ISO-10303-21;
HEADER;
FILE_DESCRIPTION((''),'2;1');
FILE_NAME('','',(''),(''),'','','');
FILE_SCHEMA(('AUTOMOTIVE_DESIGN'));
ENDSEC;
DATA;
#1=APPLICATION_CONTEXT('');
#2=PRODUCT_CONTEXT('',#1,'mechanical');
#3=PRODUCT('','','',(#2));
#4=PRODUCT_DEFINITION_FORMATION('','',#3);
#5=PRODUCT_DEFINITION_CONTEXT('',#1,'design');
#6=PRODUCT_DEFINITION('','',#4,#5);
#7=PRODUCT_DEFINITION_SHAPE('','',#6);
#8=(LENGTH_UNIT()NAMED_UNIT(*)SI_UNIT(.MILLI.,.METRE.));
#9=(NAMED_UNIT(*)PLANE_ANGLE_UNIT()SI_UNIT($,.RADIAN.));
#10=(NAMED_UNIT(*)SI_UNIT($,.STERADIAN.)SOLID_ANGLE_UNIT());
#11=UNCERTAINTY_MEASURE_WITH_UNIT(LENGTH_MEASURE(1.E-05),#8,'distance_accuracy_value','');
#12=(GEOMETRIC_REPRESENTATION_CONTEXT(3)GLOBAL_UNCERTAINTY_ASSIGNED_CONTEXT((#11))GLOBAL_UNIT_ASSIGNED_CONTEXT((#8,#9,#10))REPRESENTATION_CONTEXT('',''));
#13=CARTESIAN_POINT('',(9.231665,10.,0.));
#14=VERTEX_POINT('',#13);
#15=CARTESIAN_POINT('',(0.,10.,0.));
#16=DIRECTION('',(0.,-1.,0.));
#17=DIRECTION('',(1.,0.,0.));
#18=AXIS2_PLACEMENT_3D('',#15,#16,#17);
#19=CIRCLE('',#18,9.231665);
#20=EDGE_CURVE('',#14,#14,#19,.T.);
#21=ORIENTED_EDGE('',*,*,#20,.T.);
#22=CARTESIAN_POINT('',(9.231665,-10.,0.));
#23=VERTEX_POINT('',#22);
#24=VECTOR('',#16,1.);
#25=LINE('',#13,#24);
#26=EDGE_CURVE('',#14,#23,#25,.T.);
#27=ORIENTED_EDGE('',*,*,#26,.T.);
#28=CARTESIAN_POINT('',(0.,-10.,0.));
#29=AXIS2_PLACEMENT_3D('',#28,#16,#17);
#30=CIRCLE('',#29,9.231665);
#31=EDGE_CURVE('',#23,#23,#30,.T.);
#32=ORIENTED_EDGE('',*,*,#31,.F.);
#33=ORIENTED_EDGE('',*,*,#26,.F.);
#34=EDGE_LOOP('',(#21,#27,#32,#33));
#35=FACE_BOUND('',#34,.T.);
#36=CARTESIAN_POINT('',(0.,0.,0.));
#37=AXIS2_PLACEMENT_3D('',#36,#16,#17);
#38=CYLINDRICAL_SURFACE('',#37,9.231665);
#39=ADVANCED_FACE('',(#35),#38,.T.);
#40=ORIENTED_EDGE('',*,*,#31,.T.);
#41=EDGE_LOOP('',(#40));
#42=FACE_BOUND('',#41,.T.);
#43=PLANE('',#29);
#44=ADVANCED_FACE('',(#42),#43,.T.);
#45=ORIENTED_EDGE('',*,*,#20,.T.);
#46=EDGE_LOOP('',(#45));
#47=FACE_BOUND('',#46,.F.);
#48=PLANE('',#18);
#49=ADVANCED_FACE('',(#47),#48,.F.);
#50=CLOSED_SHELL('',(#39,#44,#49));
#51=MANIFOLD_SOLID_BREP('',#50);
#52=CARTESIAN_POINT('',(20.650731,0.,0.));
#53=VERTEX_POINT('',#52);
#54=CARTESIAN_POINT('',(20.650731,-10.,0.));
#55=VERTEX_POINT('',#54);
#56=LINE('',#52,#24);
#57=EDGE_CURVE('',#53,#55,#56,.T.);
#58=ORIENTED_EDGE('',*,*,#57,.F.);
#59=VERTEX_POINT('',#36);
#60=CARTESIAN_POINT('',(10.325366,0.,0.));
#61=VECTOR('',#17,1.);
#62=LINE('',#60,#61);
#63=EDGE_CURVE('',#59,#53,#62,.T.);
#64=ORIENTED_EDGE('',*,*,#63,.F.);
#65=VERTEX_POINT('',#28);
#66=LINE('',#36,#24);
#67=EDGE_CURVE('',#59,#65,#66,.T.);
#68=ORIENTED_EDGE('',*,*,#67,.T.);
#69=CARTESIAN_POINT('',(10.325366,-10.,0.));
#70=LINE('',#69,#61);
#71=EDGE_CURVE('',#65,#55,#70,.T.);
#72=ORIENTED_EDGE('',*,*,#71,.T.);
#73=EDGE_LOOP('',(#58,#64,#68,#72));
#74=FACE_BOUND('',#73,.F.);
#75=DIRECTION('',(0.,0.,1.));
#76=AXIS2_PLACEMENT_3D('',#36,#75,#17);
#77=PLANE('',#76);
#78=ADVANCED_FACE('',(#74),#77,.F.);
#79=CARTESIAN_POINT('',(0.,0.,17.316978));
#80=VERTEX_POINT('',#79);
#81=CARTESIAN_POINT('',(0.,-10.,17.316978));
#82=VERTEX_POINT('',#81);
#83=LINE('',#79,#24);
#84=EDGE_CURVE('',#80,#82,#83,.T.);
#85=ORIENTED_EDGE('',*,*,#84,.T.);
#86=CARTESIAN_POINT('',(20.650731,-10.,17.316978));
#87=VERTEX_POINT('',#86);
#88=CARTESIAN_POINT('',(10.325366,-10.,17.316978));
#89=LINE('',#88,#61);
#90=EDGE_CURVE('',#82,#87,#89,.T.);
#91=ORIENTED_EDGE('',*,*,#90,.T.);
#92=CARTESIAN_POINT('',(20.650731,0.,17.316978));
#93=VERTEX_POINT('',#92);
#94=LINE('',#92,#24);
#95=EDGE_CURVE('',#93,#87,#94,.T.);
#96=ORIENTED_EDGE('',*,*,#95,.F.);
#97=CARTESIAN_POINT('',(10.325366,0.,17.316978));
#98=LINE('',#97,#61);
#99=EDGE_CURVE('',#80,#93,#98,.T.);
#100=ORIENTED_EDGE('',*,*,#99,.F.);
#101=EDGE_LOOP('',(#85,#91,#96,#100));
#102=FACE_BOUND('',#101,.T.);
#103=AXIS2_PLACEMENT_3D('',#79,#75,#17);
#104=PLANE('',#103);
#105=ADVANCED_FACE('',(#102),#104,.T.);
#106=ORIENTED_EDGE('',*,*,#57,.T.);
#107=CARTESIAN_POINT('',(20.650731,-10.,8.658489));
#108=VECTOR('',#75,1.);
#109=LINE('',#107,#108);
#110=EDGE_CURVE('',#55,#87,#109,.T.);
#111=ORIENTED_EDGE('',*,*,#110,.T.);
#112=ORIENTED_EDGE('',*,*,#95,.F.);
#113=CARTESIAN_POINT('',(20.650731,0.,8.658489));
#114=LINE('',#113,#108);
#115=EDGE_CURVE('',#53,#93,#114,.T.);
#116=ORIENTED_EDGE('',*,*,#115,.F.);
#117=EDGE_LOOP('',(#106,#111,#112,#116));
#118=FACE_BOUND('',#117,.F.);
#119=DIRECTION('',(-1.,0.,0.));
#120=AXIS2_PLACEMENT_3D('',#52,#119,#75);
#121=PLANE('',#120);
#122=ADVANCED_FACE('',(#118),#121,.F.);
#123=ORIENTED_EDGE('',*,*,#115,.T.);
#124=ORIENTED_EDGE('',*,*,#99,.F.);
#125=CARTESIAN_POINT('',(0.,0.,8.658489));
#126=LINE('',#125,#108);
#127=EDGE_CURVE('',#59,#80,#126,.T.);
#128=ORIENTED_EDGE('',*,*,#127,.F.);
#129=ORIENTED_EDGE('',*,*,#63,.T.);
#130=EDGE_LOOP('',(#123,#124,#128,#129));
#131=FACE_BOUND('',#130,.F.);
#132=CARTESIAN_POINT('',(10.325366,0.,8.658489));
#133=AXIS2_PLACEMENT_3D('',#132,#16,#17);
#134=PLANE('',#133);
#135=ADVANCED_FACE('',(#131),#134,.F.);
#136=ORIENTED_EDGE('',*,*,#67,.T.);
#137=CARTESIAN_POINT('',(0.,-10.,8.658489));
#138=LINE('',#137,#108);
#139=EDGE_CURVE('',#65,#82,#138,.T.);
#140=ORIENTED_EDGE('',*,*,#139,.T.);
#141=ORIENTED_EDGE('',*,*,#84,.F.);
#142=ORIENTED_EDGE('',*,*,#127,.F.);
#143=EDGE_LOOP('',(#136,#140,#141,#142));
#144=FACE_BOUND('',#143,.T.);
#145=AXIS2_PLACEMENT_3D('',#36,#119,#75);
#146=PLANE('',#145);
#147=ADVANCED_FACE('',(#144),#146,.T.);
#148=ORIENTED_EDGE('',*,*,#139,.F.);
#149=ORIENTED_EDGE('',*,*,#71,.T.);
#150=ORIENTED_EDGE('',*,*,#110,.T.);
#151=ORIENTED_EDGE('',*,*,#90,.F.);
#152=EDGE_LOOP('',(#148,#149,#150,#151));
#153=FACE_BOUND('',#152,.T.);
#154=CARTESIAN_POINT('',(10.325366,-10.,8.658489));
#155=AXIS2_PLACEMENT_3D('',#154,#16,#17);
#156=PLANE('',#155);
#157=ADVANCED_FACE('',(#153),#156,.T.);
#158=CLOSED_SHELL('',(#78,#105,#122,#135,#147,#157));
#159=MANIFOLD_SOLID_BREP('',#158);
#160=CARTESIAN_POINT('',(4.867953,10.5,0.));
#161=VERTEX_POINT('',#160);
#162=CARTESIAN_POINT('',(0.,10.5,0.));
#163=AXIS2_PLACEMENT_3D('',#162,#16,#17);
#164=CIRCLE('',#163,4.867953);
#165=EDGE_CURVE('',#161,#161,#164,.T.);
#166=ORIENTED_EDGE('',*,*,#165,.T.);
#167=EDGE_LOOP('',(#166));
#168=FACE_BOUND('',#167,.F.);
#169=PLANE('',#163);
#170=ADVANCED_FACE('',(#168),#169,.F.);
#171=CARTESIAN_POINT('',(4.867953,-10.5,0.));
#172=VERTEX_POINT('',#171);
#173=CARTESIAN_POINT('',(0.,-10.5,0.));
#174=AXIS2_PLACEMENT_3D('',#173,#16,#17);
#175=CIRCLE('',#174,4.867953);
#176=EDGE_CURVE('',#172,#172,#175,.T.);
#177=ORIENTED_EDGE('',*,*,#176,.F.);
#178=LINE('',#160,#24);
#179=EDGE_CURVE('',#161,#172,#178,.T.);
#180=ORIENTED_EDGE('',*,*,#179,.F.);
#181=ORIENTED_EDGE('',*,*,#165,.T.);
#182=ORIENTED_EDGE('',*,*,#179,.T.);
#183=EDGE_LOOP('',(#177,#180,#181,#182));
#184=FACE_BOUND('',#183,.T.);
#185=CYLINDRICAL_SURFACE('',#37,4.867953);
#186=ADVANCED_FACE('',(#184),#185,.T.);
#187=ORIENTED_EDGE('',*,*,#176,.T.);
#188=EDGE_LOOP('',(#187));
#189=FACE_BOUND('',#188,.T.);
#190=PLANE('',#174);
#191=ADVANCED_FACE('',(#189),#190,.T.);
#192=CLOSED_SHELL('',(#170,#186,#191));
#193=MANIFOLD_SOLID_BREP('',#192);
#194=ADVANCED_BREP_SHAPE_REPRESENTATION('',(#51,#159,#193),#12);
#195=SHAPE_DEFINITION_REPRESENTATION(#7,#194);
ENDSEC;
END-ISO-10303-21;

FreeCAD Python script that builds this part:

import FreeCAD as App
import Part
import Sketcher
from FreeCAD import Vector


def add_polygon(sketch, points):
    """Adds a closed chain of lines whose ends are joined by coincident constraints."""
    first, n = sketch.GeometryCount, len(points)
    for a, b in zip(points, points[1:] + points[:1]):
        sketch.addGeometry(Part.LineSegment(App.Vector(*a, 0), App.Vector(*b, 0)), False)
    for i in range(n):
        sketch.addConstraint(Sketcher.Constraint("Coincident", first + i, 2, first + (i + 1) % n, 1))

doc = App.newDocument("Part")
body = doc.addObject("PartDesign::Body", "Body")

# Sketch on XZ plane
sketch1 = body.newObject("Sketcher::SketchObject", "Sketch")
sketch1.AttachmentSupport = (doc.getObject("XZ_Plane"), [""])
sketch1.MapMode = "FlatFace"
sketch1.addGeometry(Part.Circle(Vector(0, 0, 0), Vector(0, 0, 1), 9.231665), False)
sketch1.addConstraint(Sketcher.Constraint("Coincident", 0, 3, -1, 1))
sketch1.addConstraint(Sketcher.Constraint("Diameter", 0, 18.46333))
pad1 = body.newObject("PartDesign::Pad", "Pad")
pad1.Profile = sketch1
pad1.Length = 20
pad1.Midplane = True
body2 = doc.addObject("PartDesign::Body", "Body001")

# Sketch on XZ plane
sketch2 = body2.newObject("Sketcher::SketchObject", "Sketch001")
sketch2.AttachmentSupport = (doc.getObject("XZ_Plane001"), [""])
sketch2.MapMode = "FlatFace"
sketch2.addGeometry(Part.Circle(Vector(0, 0, 0), Vector(0, 0, 1), 4.867953), False)
sketch2.addConstraint(Sketcher.Constraint("Coincident", 0, 3, -1, 1))
sketch2.addConstraint(Sketcher.Constraint("Diameter", 0, 9.735907))
pad2 = body2.newObject("PartDesign::Pad", "Pad001")
pad2.Profile = sketch2
pad2.Length = 21
pad2.Midplane = True
body3 = doc.addObject("PartDesign::Body", "Body002")

# Sketch on XZ plane
sketch3 = body3.newObject("Sketcher::SketchObject", "Sketch002")
sketch3.AttachmentSupport = (doc.getObject("XZ_Plane002"), [""])
sketch3.MapMode = "FlatFace"
add_polygon(sketch3, [(0, 17.316978), (0, 0), (20.650731, 0), (20.650731, 17.316978)])  # lines 0-3
sketch3.addConstraint(Sketcher.Constraint("Vertical", 0))
sketch3.addConstraint(Sketcher.Constraint("Horizontal", 1))
sketch3.addConstraint(Sketcher.Constraint("Vertical", 2))
sketch3.addConstraint(Sketcher.Constraint("Horizontal", 3))
sketch3.addConstraint(Sketcher.Constraint("Coincident", 0, 2, -1, 1))
sketch3.addConstraint(Sketcher.Constraint("DistanceX", 1, 1, 1, 2, 20.650731))
sketch3.addConstraint(Sketcher.Constraint("DistanceY", 0, 2, 0, 1, 17.316978))
pad3 = body3.newObject("PartDesign::Pad", "Pad002")
pad3.Profile = sketch3
pad3.Length = 10

doc.recompute()
